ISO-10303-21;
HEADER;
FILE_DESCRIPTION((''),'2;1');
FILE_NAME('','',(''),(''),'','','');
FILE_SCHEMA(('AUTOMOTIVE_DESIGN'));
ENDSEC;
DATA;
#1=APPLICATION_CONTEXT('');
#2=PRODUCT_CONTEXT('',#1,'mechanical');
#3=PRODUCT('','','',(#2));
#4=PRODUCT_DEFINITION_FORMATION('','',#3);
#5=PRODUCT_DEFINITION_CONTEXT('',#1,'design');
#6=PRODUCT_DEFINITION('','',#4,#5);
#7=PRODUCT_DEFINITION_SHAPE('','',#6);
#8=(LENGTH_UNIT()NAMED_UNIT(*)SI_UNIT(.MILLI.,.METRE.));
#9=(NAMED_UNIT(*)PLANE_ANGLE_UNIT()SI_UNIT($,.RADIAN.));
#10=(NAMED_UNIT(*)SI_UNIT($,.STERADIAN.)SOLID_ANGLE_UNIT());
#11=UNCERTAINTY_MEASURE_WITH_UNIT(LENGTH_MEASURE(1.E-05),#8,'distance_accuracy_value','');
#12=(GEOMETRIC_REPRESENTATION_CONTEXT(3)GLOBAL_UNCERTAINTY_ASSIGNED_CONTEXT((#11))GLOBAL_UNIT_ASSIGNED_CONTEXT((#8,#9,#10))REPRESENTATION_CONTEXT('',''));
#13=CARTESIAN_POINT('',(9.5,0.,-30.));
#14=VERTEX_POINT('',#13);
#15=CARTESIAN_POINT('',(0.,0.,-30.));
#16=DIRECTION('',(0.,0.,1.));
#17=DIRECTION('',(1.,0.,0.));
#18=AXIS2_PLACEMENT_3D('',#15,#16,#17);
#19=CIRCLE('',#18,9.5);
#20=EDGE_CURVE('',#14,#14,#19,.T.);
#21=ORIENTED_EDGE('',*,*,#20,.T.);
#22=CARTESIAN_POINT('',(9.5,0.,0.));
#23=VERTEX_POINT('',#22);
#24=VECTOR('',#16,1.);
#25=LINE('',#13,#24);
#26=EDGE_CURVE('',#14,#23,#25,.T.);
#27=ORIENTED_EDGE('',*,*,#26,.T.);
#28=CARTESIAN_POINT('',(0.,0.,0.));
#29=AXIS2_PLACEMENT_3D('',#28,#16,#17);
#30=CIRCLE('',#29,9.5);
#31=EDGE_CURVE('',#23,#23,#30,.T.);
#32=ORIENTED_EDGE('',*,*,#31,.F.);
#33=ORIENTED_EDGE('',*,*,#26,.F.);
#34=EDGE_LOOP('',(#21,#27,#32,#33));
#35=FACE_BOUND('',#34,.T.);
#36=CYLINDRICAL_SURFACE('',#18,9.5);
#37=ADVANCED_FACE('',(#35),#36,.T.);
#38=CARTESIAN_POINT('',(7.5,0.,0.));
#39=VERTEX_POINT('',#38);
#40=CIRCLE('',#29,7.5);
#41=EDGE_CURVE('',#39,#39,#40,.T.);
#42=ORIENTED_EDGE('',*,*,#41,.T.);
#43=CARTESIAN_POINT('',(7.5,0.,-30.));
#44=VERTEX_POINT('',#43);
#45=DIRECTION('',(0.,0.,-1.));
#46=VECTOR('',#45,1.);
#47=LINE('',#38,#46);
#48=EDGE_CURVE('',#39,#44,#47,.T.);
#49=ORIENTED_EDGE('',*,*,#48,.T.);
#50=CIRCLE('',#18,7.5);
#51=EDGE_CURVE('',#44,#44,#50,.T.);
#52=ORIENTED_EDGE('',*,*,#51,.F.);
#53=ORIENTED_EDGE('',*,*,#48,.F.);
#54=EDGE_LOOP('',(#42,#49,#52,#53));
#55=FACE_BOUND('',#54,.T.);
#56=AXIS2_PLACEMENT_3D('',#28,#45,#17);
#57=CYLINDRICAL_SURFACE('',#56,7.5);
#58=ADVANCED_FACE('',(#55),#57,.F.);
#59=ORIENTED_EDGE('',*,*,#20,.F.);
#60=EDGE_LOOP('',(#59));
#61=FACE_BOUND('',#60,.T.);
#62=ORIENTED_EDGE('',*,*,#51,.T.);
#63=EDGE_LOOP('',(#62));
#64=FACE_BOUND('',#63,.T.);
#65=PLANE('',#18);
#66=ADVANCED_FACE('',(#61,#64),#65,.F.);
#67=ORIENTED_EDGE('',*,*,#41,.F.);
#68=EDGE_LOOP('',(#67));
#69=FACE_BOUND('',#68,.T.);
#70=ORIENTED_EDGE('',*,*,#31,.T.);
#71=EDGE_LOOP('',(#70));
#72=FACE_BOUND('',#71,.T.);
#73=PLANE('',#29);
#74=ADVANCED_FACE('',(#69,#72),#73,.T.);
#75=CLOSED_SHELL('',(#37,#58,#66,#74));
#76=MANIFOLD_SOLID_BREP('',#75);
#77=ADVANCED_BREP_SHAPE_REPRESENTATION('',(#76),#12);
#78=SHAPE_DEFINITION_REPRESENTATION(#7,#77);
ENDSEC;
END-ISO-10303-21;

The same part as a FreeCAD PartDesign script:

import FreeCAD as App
import Part
import Sketcher
from FreeCAD import Vector


def add_polygon(sketch, points):
    """Adds a closed chain of lines whose ends are joined by coincident constraints."""
    first, n = sketch.GeometryCount, len(points)
    for a, b in zip(points, points[1:] + points[:1]):
        sketch.addGeometry(Part.LineSegment(App.Vector(*a, 0), App.Vector(*b, 0)), False)
    for i in range(n):
        sketch.addConstraint(Sketcher.Constraint("Coincident", first + i, 2, first + (i + 1) % n, 1))

doc = App.newDocument("Part")
body = doc.addObject("PartDesign::Body", "Body")

# Sketch on XZ plane
sketch1 = body.newObject("Sketcher::SketchObject", "Sketch")
sketch1.AttachmentSupport = (doc.getObject("XZ_Plane"), [""])
sketch1.MapMode = "FlatFace"
add_polygon(sketch1, [(7.5, 0), (9.5, 0), (9.5, -30), (7.5, -30)])  # lines 0-3
sketch1.addConstraint(Sketcher.Constraint("Horizontal", 0))
sketch1.addConstraint(Sketcher.Constraint("Vertical", 1))
sketch1.addConstraint(Sketcher.Constraint("Horizontal", 2))
sketch1.addConstraint(Sketcher.Constraint("Vertical", 3))
sketch1.addConstraint(Sketcher.Constraint("PointOnObject", 0, 2, -1))
sketch1.addConstraint(Sketcher.Constraint("DistanceX", 0, 1, 0, 2, 2.0))
sketch1.addConstraint(Sketcher.Constraint("DistanceY", 1, 2, 1, 1, 30.0))
sketch1.addConstraint(Sketcher.Constraint("DistanceX", -1, 1, 0, 2, 9.5))
revolution = body.newObject("PartDesign::Revolution", "Revolution")
revolution.Profile = sketch1
revolution.ReferenceAxis = (sketch1, ["V_Axis"])
revolution.Angle = 360

doc.recompute()
